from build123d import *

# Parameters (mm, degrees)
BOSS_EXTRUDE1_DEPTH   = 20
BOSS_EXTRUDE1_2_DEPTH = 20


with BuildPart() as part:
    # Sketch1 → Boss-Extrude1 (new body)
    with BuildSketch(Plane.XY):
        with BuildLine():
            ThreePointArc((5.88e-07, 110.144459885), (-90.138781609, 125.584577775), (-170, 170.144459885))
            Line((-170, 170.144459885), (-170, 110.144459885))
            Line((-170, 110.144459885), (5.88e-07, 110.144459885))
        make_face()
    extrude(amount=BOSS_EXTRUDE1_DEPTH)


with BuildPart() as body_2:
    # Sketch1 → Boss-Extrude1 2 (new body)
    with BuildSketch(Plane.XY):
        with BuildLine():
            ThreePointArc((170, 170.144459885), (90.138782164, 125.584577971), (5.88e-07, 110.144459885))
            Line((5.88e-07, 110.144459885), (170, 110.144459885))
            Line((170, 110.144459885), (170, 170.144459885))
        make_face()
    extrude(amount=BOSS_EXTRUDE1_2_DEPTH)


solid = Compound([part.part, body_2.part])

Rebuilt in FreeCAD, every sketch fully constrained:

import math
import FreeCAD as App
import Part
import Sketcher
from FreeCAD import Vector
Q = App.Units.Quantity

doc = App.newDocument("Part")
body = doc.addObject("PartDesign::Body", "Body")

# Sketch on XY plane
sketch1 = body.newObject("Sketcher::SketchObject", "Sketch")
sketch1.AttachmentSupport = (doc.getObject("XY_Plane"), [""])
sketch1.MapMode = "FlatFace"
sketch1.addGeometry([
    Part.ArcOfCircle(Part.Circle(Vector(0, 381, 0), Vector(0, 0, 1), 271), math.radians(-129), math.radians(-90)),
    Part.LineSegment(Vector(-170, 170, 0), Vector(-170, 110, 0)),
    Part.LineSegment(Vector(-170, 110, 0), Vector(0, 110, 0)),
], False)
sketch1.addConstraint([
    Sketcher.Constraint("Coincident", 0, 1, 1, 1),
    Sketcher.Constraint("Coincident", 1, 2, 2, 1),
    Sketcher.Constraint("Tangent", 2, 2, 0, 2),
    Sketcher.Constraint("Vertical", 1),
    Sketcher.Constraint("Horizontal", 2),
    Sketcher.Constraint("PointOnObject", 0, 3, -2),
    Sketcher.Constraint("DistanceX", 2, 1, 2, 2, Q("170.000001 mm")),
    Sketcher.Constraint("DistanceY", 1, 2, 1, 1, Q("60 mm")),
    Sketcher.Constraint("DistanceY", -1, 1, 0, 1, Q("170.14446 mm")),
])
pad1 = body.newObject("PartDesign::Pad", "Pad")
pad1.Profile = sketch1
pad1.Length = 20
body2 = doc.addObject("PartDesign::Body", "Body001")

# Sketch on XY plane
sketch2 = body2.newObject("Sketcher::SketchObject", "Sketch001")
sketch2.AttachmentSupport = (doc.getObject("XY_Plane001"), [""])
sketch2.MapMode = "FlatFace"
sketch2.addGeometry([
    Part.ArcOfCircle(Part.Circle(Vector(0, 381, 0), Vector(0, 0, 1), 271), math.radians(-90), math.radians(-51)),
    Part.LineSegment(Vector(0, 110, 0), Vector(170, 110, 0)),
    Part.LineSegment(Vector(170, 110, 0), Vector(170, 170, 0)),
], False)
sketch2.addConstraint([
    Sketcher.Constraint("Tangent", 0, 1, 1, 1),
    Sketcher.Constraint("Coincident", 1, 2, 2, 1),
    Sketcher.Constraint("Coincident", 2, 2, 0, 2),
    Sketcher.Constraint("Horizontal", 1),
    Sketcher.Constraint("Vertical", 2),
    Sketcher.Constraint("PointOnObject", 0, 3, -2),
    Sketcher.Constraint("DistanceX", 1, 1, 1, 2, Q("169.999999 mm")),
    Sketcher.Constraint("DistanceY", 2, 1, 2, 2, Q("60 mm")),
    Sketcher.Constraint("DistanceY", -1, 1, 0, 1, Q("110.14446 mm")),
])
pad2 = body2.newObject("PartDesign::Pad", "Pad001")
pad2.Profile = sketch2
pad2.Length = 20

doc.recompute()
